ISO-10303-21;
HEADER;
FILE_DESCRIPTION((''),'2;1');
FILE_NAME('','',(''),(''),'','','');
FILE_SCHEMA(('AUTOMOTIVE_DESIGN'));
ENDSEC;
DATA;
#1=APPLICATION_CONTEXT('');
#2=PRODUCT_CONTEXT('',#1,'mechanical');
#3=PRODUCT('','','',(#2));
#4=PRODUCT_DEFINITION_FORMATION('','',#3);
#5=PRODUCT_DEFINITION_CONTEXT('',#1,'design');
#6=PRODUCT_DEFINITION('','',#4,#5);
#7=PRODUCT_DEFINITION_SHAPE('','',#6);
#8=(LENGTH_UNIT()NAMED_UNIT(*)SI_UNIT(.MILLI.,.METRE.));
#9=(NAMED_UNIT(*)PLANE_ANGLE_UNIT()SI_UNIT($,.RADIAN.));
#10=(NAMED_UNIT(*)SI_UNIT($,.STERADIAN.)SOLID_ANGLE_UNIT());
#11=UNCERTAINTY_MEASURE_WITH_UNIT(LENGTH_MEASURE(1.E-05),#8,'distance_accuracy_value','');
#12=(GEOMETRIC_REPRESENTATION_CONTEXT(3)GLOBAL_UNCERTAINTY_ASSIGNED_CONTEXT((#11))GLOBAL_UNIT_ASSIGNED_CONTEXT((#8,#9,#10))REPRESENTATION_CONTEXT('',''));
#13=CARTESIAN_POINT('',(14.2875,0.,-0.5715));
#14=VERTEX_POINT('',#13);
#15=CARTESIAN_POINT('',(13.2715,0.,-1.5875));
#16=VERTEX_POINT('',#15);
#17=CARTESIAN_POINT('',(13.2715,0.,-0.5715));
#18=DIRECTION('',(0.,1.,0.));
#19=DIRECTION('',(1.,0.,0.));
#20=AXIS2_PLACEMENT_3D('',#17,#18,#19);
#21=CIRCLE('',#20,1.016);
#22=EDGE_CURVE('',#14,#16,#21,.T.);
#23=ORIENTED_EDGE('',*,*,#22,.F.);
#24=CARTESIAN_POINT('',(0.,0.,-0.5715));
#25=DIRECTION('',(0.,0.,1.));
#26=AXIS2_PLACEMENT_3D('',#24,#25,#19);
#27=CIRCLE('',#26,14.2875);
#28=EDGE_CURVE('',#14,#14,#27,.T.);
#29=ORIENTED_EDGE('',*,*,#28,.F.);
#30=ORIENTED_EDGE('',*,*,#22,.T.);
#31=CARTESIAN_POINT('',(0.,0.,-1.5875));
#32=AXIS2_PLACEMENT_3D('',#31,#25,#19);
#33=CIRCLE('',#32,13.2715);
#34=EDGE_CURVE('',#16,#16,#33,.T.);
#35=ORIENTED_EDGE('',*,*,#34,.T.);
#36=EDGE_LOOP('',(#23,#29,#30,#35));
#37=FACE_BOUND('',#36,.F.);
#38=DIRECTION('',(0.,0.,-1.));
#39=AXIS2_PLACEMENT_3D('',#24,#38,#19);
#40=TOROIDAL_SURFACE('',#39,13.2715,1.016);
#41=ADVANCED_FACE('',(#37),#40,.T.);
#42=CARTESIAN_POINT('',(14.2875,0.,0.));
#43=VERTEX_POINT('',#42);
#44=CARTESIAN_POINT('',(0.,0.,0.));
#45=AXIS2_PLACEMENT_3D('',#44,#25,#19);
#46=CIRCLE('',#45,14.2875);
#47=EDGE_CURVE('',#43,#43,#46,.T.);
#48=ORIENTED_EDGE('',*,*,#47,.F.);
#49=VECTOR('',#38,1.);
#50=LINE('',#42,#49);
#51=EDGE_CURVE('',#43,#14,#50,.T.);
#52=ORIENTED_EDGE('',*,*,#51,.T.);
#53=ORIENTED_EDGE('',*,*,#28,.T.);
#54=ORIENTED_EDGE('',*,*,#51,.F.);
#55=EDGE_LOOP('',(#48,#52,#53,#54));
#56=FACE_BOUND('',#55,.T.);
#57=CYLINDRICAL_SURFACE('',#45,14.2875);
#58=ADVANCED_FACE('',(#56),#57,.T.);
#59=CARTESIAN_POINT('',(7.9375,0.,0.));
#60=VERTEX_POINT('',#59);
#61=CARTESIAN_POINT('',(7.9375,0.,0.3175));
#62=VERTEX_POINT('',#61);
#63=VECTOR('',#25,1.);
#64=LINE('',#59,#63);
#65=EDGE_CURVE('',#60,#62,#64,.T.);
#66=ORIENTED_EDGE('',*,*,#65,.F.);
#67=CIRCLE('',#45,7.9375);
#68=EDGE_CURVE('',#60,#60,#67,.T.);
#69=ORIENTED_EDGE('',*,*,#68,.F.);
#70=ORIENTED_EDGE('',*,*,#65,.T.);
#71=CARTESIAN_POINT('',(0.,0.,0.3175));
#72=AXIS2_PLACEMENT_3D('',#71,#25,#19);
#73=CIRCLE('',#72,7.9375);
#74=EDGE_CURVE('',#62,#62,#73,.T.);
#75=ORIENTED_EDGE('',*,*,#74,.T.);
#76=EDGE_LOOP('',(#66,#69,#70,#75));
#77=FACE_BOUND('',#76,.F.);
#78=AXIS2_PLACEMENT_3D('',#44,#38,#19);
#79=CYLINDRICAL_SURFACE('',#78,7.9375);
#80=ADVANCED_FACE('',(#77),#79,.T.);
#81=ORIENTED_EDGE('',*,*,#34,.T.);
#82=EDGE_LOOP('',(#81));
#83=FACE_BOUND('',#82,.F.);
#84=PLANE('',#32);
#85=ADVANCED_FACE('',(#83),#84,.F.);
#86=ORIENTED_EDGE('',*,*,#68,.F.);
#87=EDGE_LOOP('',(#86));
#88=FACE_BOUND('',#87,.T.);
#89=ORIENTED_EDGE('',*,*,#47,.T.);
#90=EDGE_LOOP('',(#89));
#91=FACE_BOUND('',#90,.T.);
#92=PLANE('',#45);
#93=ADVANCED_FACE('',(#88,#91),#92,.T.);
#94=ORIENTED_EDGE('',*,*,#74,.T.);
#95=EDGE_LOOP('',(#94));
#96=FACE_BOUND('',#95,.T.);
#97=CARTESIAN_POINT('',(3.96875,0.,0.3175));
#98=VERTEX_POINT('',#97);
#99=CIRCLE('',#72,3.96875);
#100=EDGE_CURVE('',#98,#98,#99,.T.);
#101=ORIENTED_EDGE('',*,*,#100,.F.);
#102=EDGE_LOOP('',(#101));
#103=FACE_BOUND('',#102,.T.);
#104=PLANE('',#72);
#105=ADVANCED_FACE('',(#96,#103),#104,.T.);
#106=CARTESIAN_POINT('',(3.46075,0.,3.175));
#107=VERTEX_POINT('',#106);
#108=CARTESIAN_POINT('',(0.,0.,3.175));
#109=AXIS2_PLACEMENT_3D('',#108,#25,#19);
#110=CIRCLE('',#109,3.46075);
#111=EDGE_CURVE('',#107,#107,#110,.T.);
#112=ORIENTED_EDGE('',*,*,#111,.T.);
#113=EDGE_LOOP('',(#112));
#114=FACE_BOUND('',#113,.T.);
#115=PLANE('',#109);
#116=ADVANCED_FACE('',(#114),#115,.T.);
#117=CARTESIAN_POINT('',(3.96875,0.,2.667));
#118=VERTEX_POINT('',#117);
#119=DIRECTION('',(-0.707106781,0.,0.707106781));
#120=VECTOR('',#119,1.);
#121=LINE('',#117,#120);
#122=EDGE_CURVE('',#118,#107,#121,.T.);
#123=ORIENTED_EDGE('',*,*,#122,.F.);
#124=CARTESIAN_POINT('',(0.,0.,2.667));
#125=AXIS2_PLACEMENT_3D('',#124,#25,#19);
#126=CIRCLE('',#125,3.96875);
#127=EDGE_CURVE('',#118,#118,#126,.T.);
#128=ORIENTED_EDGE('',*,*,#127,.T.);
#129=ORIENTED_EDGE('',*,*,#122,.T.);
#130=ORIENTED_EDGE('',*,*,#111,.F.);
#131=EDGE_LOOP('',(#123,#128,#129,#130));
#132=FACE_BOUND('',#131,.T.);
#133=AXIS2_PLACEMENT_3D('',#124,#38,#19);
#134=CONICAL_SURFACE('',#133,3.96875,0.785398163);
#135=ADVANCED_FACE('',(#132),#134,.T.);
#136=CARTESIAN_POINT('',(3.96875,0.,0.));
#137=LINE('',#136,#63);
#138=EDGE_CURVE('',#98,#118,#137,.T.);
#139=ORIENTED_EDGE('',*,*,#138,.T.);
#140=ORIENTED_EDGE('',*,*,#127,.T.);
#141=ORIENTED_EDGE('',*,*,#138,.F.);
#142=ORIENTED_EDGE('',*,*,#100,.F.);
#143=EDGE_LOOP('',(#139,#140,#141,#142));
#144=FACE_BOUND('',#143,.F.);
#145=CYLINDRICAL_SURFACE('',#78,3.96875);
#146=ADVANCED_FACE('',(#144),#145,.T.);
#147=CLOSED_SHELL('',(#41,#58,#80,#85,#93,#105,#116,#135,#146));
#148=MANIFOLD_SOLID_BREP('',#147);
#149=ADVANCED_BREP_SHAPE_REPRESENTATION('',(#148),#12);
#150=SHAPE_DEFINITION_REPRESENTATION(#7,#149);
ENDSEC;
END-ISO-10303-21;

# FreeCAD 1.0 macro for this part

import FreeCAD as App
import Part
import Sketcher
Q = App.Units.Quantity


def edges_at(feature, points):
    """Names of the edges that pass closest to the given points."""
    edges = feature.Shape.Edges
    near = lambda p: min(range(len(edges)), key=lambda i: edges[i].distToShape(Part.Vertex(*p))[0])
    return sorted({f"Edge{near(p) + 1}" for p in points})

doc = App.newDocument("Part")
body = doc.addObject("PartDesign::Body", "Body")

# Sketch on XY plane
sketch1 = doc.addObject("Sketcher::SketchObject", "Sketch")
body.addObject(sketch1)
sketch1.AttachmentSupport = (doc.XY_Plane, [""])
sketch1.MapMode = "FlatFace"
sketch1.addGeometry(Part.Circle(App.Vector(0, 0, 0), App.Vector(0, 0, 1), 14.2875), False)
sketch1.addConstraint([
    Sketcher.Constraint("Coincident", 0, 3, -1, 1),
    Sketcher.Constraint("Diameter", 0, Q("1.125 in")),
])
pad1 = doc.addObject("PartDesign::Pad", "Pad")
body.addObject(pad1)
pad1.Profile = sketch1
pad1.Length = Q("0.0625 in")
pad1.Reversed = True

# Sketch on XY plane
sketch2 = doc.addObject("Sketcher::SketchObject", "Sketch001")
body.addObject(sketch2)
sketch2.AttachmentSupport = (doc.XY_Plane, [""])
sketch2.MapMode = "FlatFace"
sketch2.addGeometry(Part.Circle(App.Vector(0, 0, 0), App.Vector(0, 0, 1), 3.96875), False)
sketch2.addConstraint([
    Sketcher.Constraint("Coincident", 0, 3, -1, 1),
    Sketcher.Constraint("Diameter", 0, Q("0.3125 in")),
])
pad2 = doc.addObject("PartDesign::Pad", "Pad001")
body.addObject(pad2)
pad2.Profile = sketch2
pad2.Length = Q("0.125 in")
doc.recompute()

fillet = doc.addObject("PartDesign::Fillet", "Fillet")
body.addObject(fillet)
fillet.Base = (pad2, edges_at(pad2, [(-14.287, 0, -1.587)]))
fillet.Radius = Q("0.04 in")

# Sketch on XY plane
sketch3 = doc.addObject("Sketcher::SketchObject", "Sketch002")
body.addObject(sketch3)
sketch3.AttachmentSupport = (doc.XY_Plane, [""])
sketch3.MapMode = "FlatFace"
sketch3.addGeometry([
    Part.Circle(App.Vector(0, 0, 0), App.Vector(0, 0, 1), 7.9375),
    Part.Circle(App.Vector(0, 0, 0), App.Vector(0, 0, 1), 3.96875),
], False)
sketch3.addConstraint([
    Sketcher.Constraint("Coincident", 0, 3, -1, 1),
    Sketcher.Constraint("Coincident", 1, 3, -1, 1),
    Sketcher.Constraint("Diameter", 0, Q("0.625 in")),
    Sketcher.Constraint("Diameter", 1, Q("0.3125 in")),
])
pad3 = doc.addObject("PartDesign::Pad", "Pad002")
body.addObject(pad3)
pad3.Profile = sketch3
pad3.Length = Q("0.0125 in")
doc.recompute()

chamfer = doc.addObject("PartDesign::Chamfer", "Chamfer")
body.addObject(chamfer)
chamfer.Base = (pad3, edges_at(pad3, [(-3.969, 0, 3.175)]))
chamfer.Size = Q("0.02 in")

doc.recompute()
